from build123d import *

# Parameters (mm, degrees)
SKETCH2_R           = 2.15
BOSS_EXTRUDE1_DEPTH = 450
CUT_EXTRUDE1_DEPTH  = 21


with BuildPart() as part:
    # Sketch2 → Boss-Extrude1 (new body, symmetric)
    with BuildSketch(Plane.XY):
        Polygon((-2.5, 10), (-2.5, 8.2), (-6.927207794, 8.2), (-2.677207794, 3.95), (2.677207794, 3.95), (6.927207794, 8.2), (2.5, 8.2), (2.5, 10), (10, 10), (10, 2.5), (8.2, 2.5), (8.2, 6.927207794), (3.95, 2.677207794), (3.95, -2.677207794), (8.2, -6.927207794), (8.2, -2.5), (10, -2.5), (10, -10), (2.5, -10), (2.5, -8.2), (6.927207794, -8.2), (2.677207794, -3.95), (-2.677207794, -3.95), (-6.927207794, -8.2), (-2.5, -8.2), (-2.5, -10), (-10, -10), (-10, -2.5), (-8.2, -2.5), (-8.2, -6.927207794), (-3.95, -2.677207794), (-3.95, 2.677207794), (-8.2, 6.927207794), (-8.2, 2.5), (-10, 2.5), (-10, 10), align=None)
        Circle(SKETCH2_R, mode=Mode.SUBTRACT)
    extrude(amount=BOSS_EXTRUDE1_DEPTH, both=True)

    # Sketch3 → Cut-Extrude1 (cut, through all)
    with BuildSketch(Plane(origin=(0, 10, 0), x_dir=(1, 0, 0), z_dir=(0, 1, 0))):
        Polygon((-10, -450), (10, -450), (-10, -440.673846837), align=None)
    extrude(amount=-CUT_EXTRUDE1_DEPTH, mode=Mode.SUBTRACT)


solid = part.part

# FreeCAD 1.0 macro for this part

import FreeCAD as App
import Part
import Sketcher

V = App.Vector
Q = App.Units.Quantity

doc = App.newDocument("Part")
body = doc.addObject("PartDesign::Body", "Body")

sketch1 = body.newObject("Sketcher::SketchObject", "Sketch")
sketch1.AttachmentSupport = (doc.getObject("XY_Plane"), [""])
sketch1.MapMode = "FlatFace"
sketch1.addGeometry(Part.LineSegment(V(-2.5, 8.2, 0), V(-2.5, 10, 0)), False)
sketch1.addGeometry(Part.LineSegment(V(-2.5, 10, 0), V(-10, 10, 0)), False)
sketch1.addGeometry(Part.LineSegment(V(-10, 10, 0), V(-10, 2.5, 0)), False)
sketch1.addGeometry(Part.LineSegment(V(-10, 2.5, 0), V(-8.2, 2.5, 0)), False)
sketch1.addGeometry(Part.LineSegment(V(-8.2, 2.5, 0), V(-8.2, 6.9, 0)), False)
sketch1.addGeometry(Part.LineSegment(V(-8.2, 6.9, 0), V(-4, 2.7, 0)), False)
sketch1.addGeometry(Part.LineSegment(V(-4, 2.7, 0), V(-4, -2.7, 0)), False)
sketch1.addGeometry(Part.LineSegment(V(-4, -2.7, 0), V(-8.2, -6.9, 0)), False)
sketch1.addGeometry(Part.LineSegment(V(-8.2, -6.9, 0), V(-8.2, -2.5, 0)), False)
sketch1.addGeometry(Part.LineSegment(V(-8.2, -2.5, 0), V(-10, -2.5, 0)), False)
sketch1.addGeometry(Part.LineSegment(V(-10, -2.5, 0), V(-10, -10, 0)), False)
sketch1.addGeometry(Part.LineSegment(V(-10, -10, 0), V(-2.5, -10, 0)), False)
sketch1.addGeometry(Part.LineSegment(V(-2.5, -10, 0), V(-2.5, -8.2, 0)), False)
sketch1.addGeometry(Part.LineSegment(V(-2.5, -8.2, 0), V(-6.9, -8.2, 0)), False)
sketch1.addGeometry(Part.LineSegment(V(-6.9, -8.2, 0), V(-2.7, -4, 0)), False)
sketch1.addGeometry(Part.LineSegment(V(-2.7, -4, 0), V(2.7, -4, 0)), False)
sketch1.addGeometry(Part.LineSegment(V(2.7, -4, 0), V(6.9, -8.2, 0)), False)
sketch1.addGeometry(Part.LineSegment(V(6.9, -8.2, 0), V(2.5, -8.2, 0)), False)
sketch1.addGeometry(Part.LineSegment(V(2.5, -8.2, 0), V(2.5, -10, 0)), False)
sketch1.addGeometry(Part.LineSegment(V(2.5, -10, 0), V(10, -10, 0)), False)
sketch1.addGeometry(Part.LineSegment(V(10, -10, 0), V(10, -2.5, 0)), False)
sketch1.addGeometry(Part.LineSegment(V(10, -2.5, 0), V(8.2, -2.5, 0)), False)
sketch1.addGeometry(Part.LineSegment(V(8.2, -2.5, 0), V(8.2, -6.9, 0)), False)
sketch1.addGeometry(Part.LineSegment(V(8.2, -6.9, 0), V(4, -2.7, 0)), False)
sketch1.addGeometry(Part.LineSegment(V(4, -2.7, 0), V(4, 2.7, 0)), False)
sketch1.addGeometry(Part.LineSegment(V(4, 2.7, 0), V(8.2, 6.9, 0)), False)
sketch1.addGeometry(Part.LineSegment(V(8.2, 6.9, 0), V(8.2, 2.5, 0)), False)
sketch1.addGeometry(Part.LineSegment(V(8.2, 2.5, 0), V(10, 2.5, 0)), False)
sketch1.addGeometry(Part.LineSegment(V(10, 2.5, 0), V(10, 10, 0)), False)
sketch1.addGeometry(Part.LineSegment(V(10, 10, 0), V(2.5, 10, 0)), False)
sketch1.addGeometry(Part.LineSegment(V(2.5, 10, 0), V(2.5, 8.2, 0)), False)
sketch1.addGeometry(Part.LineSegment(V(2.5, 8.2, 0), V(6.9, 8.2, 0)), False)
sketch1.addGeometry(Part.LineSegment(V(6.9, 8.2, 0), V(2.7, 4, 0)), False)
sketch1.addGeometry(Part.LineSegment(V(2.7, 4, 0), V(-2.7, 4, 0)), False)
sketch1.addGeometry(Part.LineSegment(V(-2.7, 4, 0), V(-6.9, 8.2, 0)), False)
sketch1.addGeometry(Part.LineSegment(V(-6.9, 8.2, 0), V(-2.5, 8.2, 0)), False)
sketch1.addGeometry(Part.Circle(V(0, 0, 0), V(0, 0, 1), 2.1), False)
sketch1.addConstraint(Sketcher.Constraint("Coincident", 0, 2, 1, 1))
sketch1.addConstraint(Sketcher.Constraint("Coincident", 1, 2, 2, 1))
sketch1.addConstraint(Sketcher.Constraint("Coincident", 2, 2, 3, 1))
sketch1.addConstraint(Sketcher.Constraint("Coincident", 3, 2, 4, 1))
sketch1.addConstraint(Sketcher.Constraint("Coincident", 4, 2, 5, 1))
sketch1.addConstraint(Sketcher.Constraint("Coincident", 5, 2, 6, 1))
sketch1.addConstraint(Sketcher.Constraint("Coincident", 6, 2, 7, 1))
sketch1.addConstraint(Sketcher.Constraint("Coincident", 7, 2, 8, 1))
sketch1.addConstraint(Sketcher.Constraint("Coincident", 8, 2, 9, 1))
sketch1.addConstraint(Sketcher.Constraint("Coincident", 9, 2, 10, 1))
sketch1.addConstraint(Sketcher.Constraint("Coincident", 10, 2, 11, 1))
sketch1.addConstraint(Sketcher.Constraint("Coincident", 11, 2, 12, 1))
sketch1.addConstraint(Sketcher.Constraint("Coincident", 12, 2, 13, 1))
sketch1.addConstraint(Sketcher.Constraint("Coincident", 13, 2, 14, 1))
sketch1.addConstraint(Sketcher.Constraint("Coincident", 14, 2, 15, 1))
sketch1.addConstraint(Sketcher.Constraint("Coincident", 15, 2, 16, 1))
sketch1.addConstraint(Sketcher.Constraint("Coincident", 16, 2, 17, 1))
sketch1.addConstraint(Sketcher.Constraint("Coincident", 17, 2, 18, 1))
sketch1.addConstraint(Sketcher.Constraint("Coincident", 18, 2, 19, 1))
sketch1.addConstraint(Sketcher.Constraint("Coincident", 19, 2, 20, 1))
sketch1.addConstraint(Sketcher.Constraint("Coincident", 20, 2, 21, 1))
sketch1.addConstraint(Sketcher.Constraint("Coincident", 21, 2, 22, 1))
sketch1.addConstraint(Sketcher.Constraint("Coincident", 22, 2, 23, 1))
sketch1.addConstraint(Sketcher.Constraint("Coincident", 23, 2, 24, 1))
sketch1.addConstraint(Sketcher.Constraint("Coincident", 24, 2, 25, 1))
sketch1.addConstraint(Sketcher.Constraint("Coincident", 25, 2, 26, 1))
sketch1.addConstraint(Sketcher.Constraint("Coincident", 26, 2, 27, 1))
sketch1.addConstraint(Sketcher.Constraint("Coincident", 27, 2, 28, 1))
sketch1.addConstraint(Sketcher.Constraint("Coincident", 28, 2, 29, 1))
sketch1.addConstraint(Sketcher.Constraint("Coincident", 29, 2, 30, 1))
sketch1.addConstraint(Sketcher.Constraint("Coincident", 30, 2, 31, 1))
sketch1.addConstraint(Sketcher.Constraint("Coincident", 31, 2, 32, 1))
sketch1.addConstraint(Sketcher.Constraint("Coincident", 32, 2, 33, 1))
sketch1.addConstraint(Sketcher.Constraint("Coincident", 33, 2, 34, 1))
sketch1.addConstraint(Sketcher.Constraint("Coincident", 34, 2, 35, 1))
sketch1.addConstraint(Sketcher.Constraint("Coincident", 35, 2, 0, 1))
sketch1.addConstraint(Sketcher.Constraint("Vertical", 0))
sketch1.addConstraint(Sketcher.Constraint("Horizontal", 1))
sketch1.addConstraint(Sketcher.Constraint("Vertical", 2))
sketch1.addConstraint(Sketcher.Constraint("Horizontal", 3))
sketch1.addConstraint(Sketcher.Constraint("Vertical", 4))
sketch1.addConstraint(Sketcher.Constraint("Vertical", 6))
sketch1.addConstraint(Sketcher.Constraint("Vertical", 8))
sketch1.addConstraint(Sketcher.Constraint("Horizontal", 9))
sketch1.addConstraint(Sketcher.Constraint("Vertical", 10))
sketch1.addConstraint(Sketcher.Constraint("Horizontal", 11))
sketch1.addConstraint(Sketcher.Constraint("Vertical", 12))
sketch1.addConstraint(Sketcher.Constraint("Horizontal", 13))
sketch1.addConstraint(Sketcher.Constraint("Horizontal", 15))
sketch1.addConstraint(Sketcher.Constraint("Horizontal", 17))
sketch1.addConstraint(Sketcher.Constraint("Vertical", 18))
sketch1.addConstraint(Sketcher.Constraint("Horizontal", 19))
sketch1.addConstraint(Sketcher.Constraint("Vertical", 20))
sketch1.addConstraint(Sketcher.Constraint("Horizontal", 21))
sketch1.addConstraint(Sketcher.Constraint("Vertical", 22))
sketch1.addConstraint(Sketcher.Constraint("Vertical", 24))
sketch1.addConstraint(Sketcher.Constraint("Vertical", 26))
sketch1.addConstraint(Sketcher.Constraint("Horizontal", 27))
sketch1.addConstraint(Sketcher.Constraint("Vertical", 28))
sketch1.addConstraint(Sketcher.Constraint("Horizontal", 29))
sketch1.addConstraint(Sketcher.Constraint("Vertical", 30))
sketch1.addConstraint(Sketcher.Constraint("Horizontal", 31))
sketch1.addConstraint(Sketcher.Constraint("Horizontal", 33))
sketch1.addConstraint(Sketcher.Constraint("Horizontal", 35))
sketch1.addConstraint(Sketcher.Constraint("Coincident", 36, 3, -1, 1))
sketch1.addConstraint(Sketcher.Constraint("Symmetric", 0, 2, 18, 2, -1, 1))
sketch1.addConstraint(Sketcher.Constraint("Symmetric", 2, 2, 20, 2, -1, 1))
sketch1.addConstraint(Sketcher.Constraint("Symmetric", 4, 2, 22, 2, -1, 1))
sketch1.addConstraint(Sketcher.Constraint("Symmetric", 5, 2, 23, 2, -1, 1))
sketch1.addConstraint(Sketcher.Constraint("Symmetric", 7, 2, 25, 2, -1, 1))
sketch1.addConstraint(Sketcher.Constraint("Symmetric", 9, 2, 27, 2, -1, 1))
sketch1.addConstraint(Sketcher.Constraint("Symmetric", 11, 2, 29, 2, -1, 1))
sketch1.addConstraint(Sketcher.Constraint("Symmetric", 13, 2, 31, 2, -1, 1))
sketch1.addConstraint(Sketcher.Constraint("Symmetric", 14, 2, 32, 2, -1, 1))
sketch1.addConstraint(Sketcher.Constraint("Symmetric", 16, 2, 34, 2, -1, 1))
sketch1.addConstraint(Sketcher.Constraint("Symmetric", 13, 2, 16, 2, -2))
sketch1.addConstraint(Sketcher.Constraint("Symmetric", 11, 2, 18, 2, -2))
sketch1.addConstraint(Sketcher.Constraint("Symmetric", 9, 2, 20, 2, -2))
sketch1.addConstraint(Sketcher.Constraint("Symmetric", 7, 2, 22, 2, -2))
sketch1.addConstraint(Sketcher.Constraint("Perpendicular", 5, 7))
sketch1.addConstraint(Sketcher.Constraint("Parallel", 7, 14))
sketch1.addConstraint(Sketcher.Constraint("Perpendicular", 14, 16))
sketch1.addConstraint(Sketcher.Constraint("Perpendicular", 23, 25))
sketch1.addConstraint(Sketcher.Constraint("Perpendicular", 32, 34))
sketch1.addConstraint(Sketcher.Constraint("Horizontal", 6, 2, 23, 2))
sketch1.addConstraint(Sketcher.Constraint("Equal", 27, 0))
sketch1.addConstraint(Sketcher.Constraint("Equal", 29, 2))
sketch1.addConstraint(Sketcher.Constraint("Equal", 35, 4))
sketch1.addConstraint(Sketcher.Constraint("Equal", 33, 6))
sketch1.addConstraint(Sketcher.Constraint("Equal", 7, 14))
sketch1.addConstraint(Sketcher.Constraint("Diameter", 36, 4.3))
sketch1.addConstraint(Sketcher.Constraint("DistanceX", 1, 2, 1, 1, 7.5))
sketch1.addConstraint(Sketcher.Constraint("DistanceX", 3, 1, 3, 2, 1.8))
sketch1.addConstraint(Sketcher.Constraint("DistanceY", -1, 1, 0, 2, 10.0))
sketch1.addConstraint(Sketcher.Constraint("DistanceX", 5, 2, 24, 2, 7.9))
sketch1.addConstraint(Sketcher.Constraint("DistanceX", 13, 2, 13, 1, 4.427208))
pad1 = body.newObject("PartDesign::Pad", "Pad")
pad1.Profile = sketch1
pad1.Length = 900
pad1.Midplane = True

sketch2 = body.newObject("Sketcher::SketchObject", "Sketch001")
sketch2.AttachmentSupport = (doc.getObject("XZ_Plane"), [""])
sketch2.MapMode = "FlatFace"
sketch2.AttachmentOffset = App.Placement(V(0, 0, -10), App.Rotation())
sketch2.addGeometry(Part.LineSegment(V(-10, 450, 0), V(10, 450, 0)), False)
sketch2.addGeometry(Part.LineSegment(V(10, 450, 0), V(-10, 441, 0)), False)
sketch2.addGeometry(Part.LineSegment(V(-10, 441, 0), V(-10, 450, 0)), False)
sketch2.addConstraint(Sketcher.Constraint("Coincident", 0, 2, 1, 1))
sketch2.addConstraint(Sketcher.Constraint("Coincident", 1, 2, 2, 1))
sketch2.addConstraint(Sketcher.Constraint("Coincident", 2, 2, 0, 1))
sketch2.addConstraint(Sketcher.Constraint("Horizontal", 0))
sketch2.addConstraint(Sketcher.Constraint("Vertical", 2))
sketch2.addConstraint(Sketcher.Constraint("DistanceX", 0, 1, 0, 2, 20.0))
sketch2.addConstraint(Sketcher.Constraint("Angle", 1, Q("-155 deg")))
sketch2.addConstraint(Sketcher.Constraint("DistanceX", -1, 1, 0, 2, 10.0))
sketch2.addConstraint(Sketcher.Constraint("DistanceY", -1, 1, 0, 2, 450.0))
pocket1 = body.newObject("PartDesign::Pocket", "Pocket")
pocket1.Profile = sketch2
pocket1.Type = "ThroughAll"
pocket1.Reversed = True

doc.recompute()
